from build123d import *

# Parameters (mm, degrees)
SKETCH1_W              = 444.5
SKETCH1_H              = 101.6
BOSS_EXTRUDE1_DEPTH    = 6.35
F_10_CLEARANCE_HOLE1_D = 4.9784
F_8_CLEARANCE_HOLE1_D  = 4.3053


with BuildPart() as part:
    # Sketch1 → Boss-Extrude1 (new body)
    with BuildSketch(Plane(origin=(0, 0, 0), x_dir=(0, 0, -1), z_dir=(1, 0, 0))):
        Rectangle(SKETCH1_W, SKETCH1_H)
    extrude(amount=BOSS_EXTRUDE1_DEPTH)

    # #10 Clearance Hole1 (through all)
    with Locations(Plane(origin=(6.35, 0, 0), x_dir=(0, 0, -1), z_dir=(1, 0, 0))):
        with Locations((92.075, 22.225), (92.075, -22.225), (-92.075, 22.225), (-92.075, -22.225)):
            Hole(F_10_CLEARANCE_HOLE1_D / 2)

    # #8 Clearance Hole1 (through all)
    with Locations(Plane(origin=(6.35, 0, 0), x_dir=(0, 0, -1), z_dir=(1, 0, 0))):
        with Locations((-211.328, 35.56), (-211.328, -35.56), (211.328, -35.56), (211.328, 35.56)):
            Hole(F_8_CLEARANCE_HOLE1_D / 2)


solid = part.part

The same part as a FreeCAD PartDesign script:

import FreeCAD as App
import Part
import Sketcher
Q = App.Units.Quantity

doc = App.newDocument("Part")
body = doc.addObject("PartDesign::Body", "Body")

sketch1 = body.newObject("Sketcher::SketchObject", "Sketch")
sketch1.AttachmentSupport = (doc.getObject("YZ_Plane"), [""])
sketch1.MapMode = "FlatFace"
sketch1.addGeometry([
    Part.LineSegment(App.Vector(51, 222, 0), App.Vector(-51, 222, 0)),
    Part.LineSegment(App.Vector(-51, 222, 0), App.Vector(-51, -222, 0)),
    Part.LineSegment(App.Vector(-51, -222, 0), App.Vector(51, -222, 0)),
    Part.LineSegment(App.Vector(51, -222, 0), App.Vector(51, 222, 0)),
], False)
sketch1.addConstraint([
    Sketcher.Constraint("Coincident", 0, 2, 1, 1),
    Sketcher.Constraint("Coincident", 1, 2, 2, 1),
    Sketcher.Constraint("Coincident", 2, 2, 3, 1),
    Sketcher.Constraint("Coincident", 3, 2, 0, 1),
    Sketcher.Constraint("Horizontal", 0),
    Sketcher.Constraint("Vertical", 1),
    Sketcher.Constraint("Horizontal", 2),
    Sketcher.Constraint("Vertical", 3),
    Sketcher.Constraint("Symmetric", 0, 2, 2, 2, -1, 1),
    Sketcher.Constraint("DistanceX", 0, 2, 0, 1, Q("4 in")),
    Sketcher.Constraint("DistanceY", 1, 2, 1, 1, Q("17.5 in")),
])
pad1 = body.newObject("PartDesign::Pad", "Pad")
pad1.Profile = sketch1
pad1.Length = Q("0.25 in")

sketch2 = body.newObject("Sketcher::SketchObject", "Sketch001")
sketch2.AttachmentSupport = (doc.getObject("YZ_Plane"), [""])
sketch2.MapMode = "FlatFace"
sketch2.AttachmentOffset = App.Placement(App.Vector(0, 0, 0.25 * 25.4), App.Rotation())
sketch2.addGeometry([
    Part.Circle(App.Vector(22.2, -92.1, 0), App.Vector(0, 0, 1), 2.5),
    Part.Circle(App.Vector(-22.2, -92.1, 0), App.Vector(0, 0, 1), 2.5),
    Part.Circle(App.Vector(22.2, 92.1, 0), App.Vector(0, 0, 1), 2.5),
    Part.Circle(App.Vector(-22.2, 92.1, 0), App.Vector(0, 0, 1), 2.5),
], False)
sketch2.addConstraint([
    Sketcher.Constraint("Equal", 0, 1),
    Sketcher.Constraint("Equal", 1, 2),
    Sketcher.Constraint("Equal", 2, 3),
    Sketcher.Constraint("Symmetric", 1, 3, 2, 3, -1, 1),
    Sketcher.Constraint("Symmetric", 0, 3, 3, 3, -1, 1),
    Sketcher.Constraint("Symmetric", 0, 3, 1, 3, -2),
    Sketcher.Constraint("Diameter", 0, Q("0.196 in")),
    Sketcher.Constraint("DistanceX", 1, 3, 0, 3, Q("1.75 in")),
    Sketcher.Constraint("DistanceY", 0, 3, 2, 3, Q("7.25 in")),
])
doc.recompute()
hole = body.newObject("PartDesign::Hole", "Hole")
hole.Profile = sketch2
hole.ThreadType = "None"
hole.Diameter = Q("0.196 in")
hole.DepthType = "ThroughAll"

sketch3 = body.newObject("Sketcher::SketchObject", "Sketch002")
sketch3.AttachmentSupport = (doc.getObject("YZ_Plane"), [""])
sketch3.MapMode = "FlatFace"
sketch3.AttachmentOffset = App.Placement(App.Vector(0, 0, 0.25 * 25.4), App.Rotation())
sketch3.addGeometry([
    Part.Circle(App.Vector(35.6, 211.3, 0), App.Vector(0, 0, 1), 2.2),
    Part.Circle(App.Vector(-35.6, 211.3, 0), App.Vector(0, 0, 1), 2.2),
    Part.Circle(App.Vector(-35.6, -211.3, 0), App.Vector(0, 0, 1), 2.2),
    Part.Circle(App.Vector(35.6, -211.3, 0), App.Vector(0, 0, 1), 2.2),
], False)
sketch3.addConstraint([
    Sketcher.Constraint("Equal", 0, 1),
    Sketcher.Constraint("Equal", 1, 2),
    Sketcher.Constraint("Equal", 2, 3),
    Sketcher.Constraint("Symmetric", 0, 3, 2, 3, -1, 1),
    Sketcher.Constraint("Symmetric", 1, 3, 3, 3, -1, 1),
    Sketcher.Constraint("Symmetric", 0, 3, 1, 3, -2),
    Sketcher.Constraint("Diameter", 0, Q("0.1695 in")),
    Sketcher.Constraint("DistanceX", -1, 1, 0, 3, Q("1.4 in")),
    Sketcher.Constraint("DistanceY", -1, 1, 0, 3, Q("8.32 in")),
])
doc.recompute()
hole2 = body.newObject("PartDesign::Hole", "Hole001")
hole2.Profile = sketch3
hole2.ThreadType = "None"
hole2.Diameter = Q("0.1695 in")
hole2.DepthType = "ThroughAll"

doc.recompute()
